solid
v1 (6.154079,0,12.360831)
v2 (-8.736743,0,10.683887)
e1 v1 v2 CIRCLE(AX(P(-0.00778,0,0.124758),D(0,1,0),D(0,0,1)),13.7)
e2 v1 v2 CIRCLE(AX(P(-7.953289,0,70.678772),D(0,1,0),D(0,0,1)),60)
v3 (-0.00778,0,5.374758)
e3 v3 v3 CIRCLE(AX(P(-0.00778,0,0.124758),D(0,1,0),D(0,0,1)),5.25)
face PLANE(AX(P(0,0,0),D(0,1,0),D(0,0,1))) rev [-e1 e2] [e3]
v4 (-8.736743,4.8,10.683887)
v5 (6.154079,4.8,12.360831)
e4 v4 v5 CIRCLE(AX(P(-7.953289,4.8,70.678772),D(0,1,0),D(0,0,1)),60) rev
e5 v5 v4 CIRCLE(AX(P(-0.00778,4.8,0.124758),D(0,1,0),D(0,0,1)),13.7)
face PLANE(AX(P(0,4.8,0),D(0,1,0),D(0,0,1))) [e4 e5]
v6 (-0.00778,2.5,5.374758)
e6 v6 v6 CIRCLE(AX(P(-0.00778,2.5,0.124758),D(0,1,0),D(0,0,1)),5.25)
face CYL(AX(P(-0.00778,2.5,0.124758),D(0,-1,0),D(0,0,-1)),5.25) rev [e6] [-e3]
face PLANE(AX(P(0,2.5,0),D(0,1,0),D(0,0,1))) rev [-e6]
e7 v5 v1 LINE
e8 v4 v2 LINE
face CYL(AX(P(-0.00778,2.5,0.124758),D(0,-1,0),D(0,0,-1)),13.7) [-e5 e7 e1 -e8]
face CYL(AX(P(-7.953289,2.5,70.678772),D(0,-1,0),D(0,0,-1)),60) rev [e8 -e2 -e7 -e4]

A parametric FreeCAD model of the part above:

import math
import FreeCAD as App
import Part
import Sketcher
from FreeCAD import Vector

doc = App.newDocument("Part")
body = doc.addObject("PartDesign::Body", "Body")

# Sketch on XZ plane
sketch1 = body.newObject("Sketcher::SketchObject", "Sketch")
sketch1.AttachmentSupport = (doc.getObject("XZ_Plane"), [""])
sketch1.MapMode = "FlatFace"
sketch1.addGeometry([
    Part.ArcOfCircle(Part.Circle(Vector(0, 0, 0), Vector(0, 0, 1), 14), math.radians(0), math.radians(63)),
    Part.ArcOfCircle(Part.Circle(Vector(0, 0, 0), Vector(0, 0, 1), 14), math.radians(130), math.radians(360)),
    Part.ArcOfCircle(Part.Circle(Vector(-8, 71, 0), Vector(0, 0, 1), 60), math.radians(-90.75), math.radians(-76.4)),
    Part.Circle(Vector(0, 0, 0), Vector(0, 0, 1), 5),
], False)
sketch1.addConstraint([
    Sketcher.Constraint("Tangent", 0, 1, 1, 2),
    Sketcher.Constraint("Coincident", 1, 1, 2, 1),
    Sketcher.Constraint("Coincident", 2, 2, 0, 2),
    Sketcher.Constraint("Coincident", 3, 3, 0, 3),
    Sketcher.Constraint("Equal", 0, 1),
    Sketcher.Constraint("Horizontal", 3, 3, 0, 1),
    Sketcher.Constraint("Radius", 2, 60.0),
    Sketcher.Constraint("Diameter", 3, 10.5),
    Sketcher.Constraint("Radius", 0, 13.7),
    Sketcher.Constraint("DistanceX", 0, 3, -1, 1, 0.00778),
    Sketcher.Constraint("DistanceX", 2, 3, -1, 1, 7.953289),
    Sketcher.Constraint("DistanceY", -1, 1, 2, 3, 70.678772),
    Sketcher.Constraint("DistanceX", -1, 1, 2, 2, 6.154079),
])
pad1 = body.newObject("PartDesign::Pad", "Pad")
pad1.Profile = sketch1
pad1.Length = 2.5
pad1.Reversed = True

# Sketch on XZ plane
sketch2 = body.newObject("Sketcher::SketchObject", "Sketch001")
sketch2.AttachmentSupport = (doc.getObject("XZ_Plane"), [""])
sketch2.MapMode = "FlatFace"
sketch2.AttachmentOffset = App.Placement(Vector(0, 0, -2.5), App.Rotation())
sketch2.addGeometry([
    Part.ArcOfCircle(Part.Circle(Vector(-8, 71, 0), Vector(0, 0, 1), 60), math.radians(-90.75), math.radians(-76.4)),
    Part.ArcOfCircle(Part.Circle(Vector(0, 0, 0), Vector(0, 0, 1), 14), math.radians(130), math.radians(423)),
], False)
sketch2.addConstraint([
    Sketcher.Constraint("Coincident", 0, 1, 1, 1),
    Sketcher.Constraint("Coincident", 1, 2, 0, 2),
    Sketcher.Constraint("Radius", 0, 60.0),
    Sketcher.Constraint("Radius", 1, 13.7),
    Sketcher.Constraint("DistanceX", 0, 3, -1, 1, 7.953289),
    Sketcher.Constraint("DistanceY", -1, 1, 0, 3, 70.678772),
    Sketcher.Constraint("DistanceX", 1, 3, -1, 1, 0.00778),
    Sketcher.Constraint("DistanceX", -1, 1, 1, 2, 6.154079),
])
pad2 = body.newObject("PartDesign::Pad", "Pad001")
pad2.Profile = sketch2
pad2.Length = 2.3
pad2.Reversed = True

doc.recompute()
